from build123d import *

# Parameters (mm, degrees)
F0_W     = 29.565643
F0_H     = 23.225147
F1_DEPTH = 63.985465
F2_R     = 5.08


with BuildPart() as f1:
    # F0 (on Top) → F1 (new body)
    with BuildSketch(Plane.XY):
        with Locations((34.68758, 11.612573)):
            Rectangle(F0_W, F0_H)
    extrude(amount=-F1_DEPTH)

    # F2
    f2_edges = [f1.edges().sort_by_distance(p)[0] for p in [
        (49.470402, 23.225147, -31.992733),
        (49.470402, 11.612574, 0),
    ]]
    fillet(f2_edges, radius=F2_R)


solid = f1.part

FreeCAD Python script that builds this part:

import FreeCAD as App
import Part
import Sketcher

V = App.Vector
Q = App.Units.Quantity


def edges_at(feature, points):
    """Names of the edges that pass closest to the given points."""
    edges = feature.Shape.Edges
    near = lambda p: min(range(len(edges)), key=lambda i: edges[i].distToShape(Part.Vertex(*p))[0])
    return sorted({f"Edge{near(p) + 1}" for p in points})

doc = App.newDocument("Part")
body = doc.addObject("PartDesign::Body", "Body")

sketch1 = doc.addObject("Sketcher::SketchObject", "Sketch")
body.addObject(sketch1)
sketch1.AttachmentSupport = (doc.XY_Plane, [""])
sketch1.MapMode = "FlatFace"
sketch1.addGeometry(Part.LineSegment(V(20, 23, 0), V(20, 0, 0)), False)
sketch1.addGeometry(Part.LineSegment(V(20, 0, 0), V(49, 0, 0)), False)
sketch1.addGeometry(Part.LineSegment(V(49, 0, 0), V(49, 23, 0)), False)
sketch1.addGeometry(Part.LineSegment(V(49, 23, 0), V(20, 23, 0)), False)
sketch1.addConstraint(Sketcher.Constraint("Coincident", 0, 2, 1, 1))
sketch1.addConstraint(Sketcher.Constraint("Coincident", 1, 2, 2, 1))
sketch1.addConstraint(Sketcher.Constraint("Coincident", 2, 2, 3, 1))
sketch1.addConstraint(Sketcher.Constraint("Coincident", 3, 2, 0, 1))
sketch1.addConstraint(Sketcher.Constraint("Vertical", 0))
sketch1.addConstraint(Sketcher.Constraint("Horizontal", 1))
sketch1.addConstraint(Sketcher.Constraint("Vertical", 2))
sketch1.addConstraint(Sketcher.Constraint("Horizontal", 3))
sketch1.addConstraint(Sketcher.Constraint("PointOnObject", 0, 2, -1))
sketch1.addConstraint(Sketcher.Constraint("DistanceX", -1, 1, 1, 2, Q("49.470402 mm")))
sketch1.addConstraint(Sketcher.Constraint("DistanceX", 1, 1, 1, 2, Q("29.565643 mm")))
sketch1.addConstraint(Sketcher.Constraint("DistanceY", 0, 2, 0, 1, Q("23.225147 mm")))
pad1 = doc.addObject("PartDesign::Pad", "Pad")
body.addObject(pad1)
pad1.Profile = sketch1
pad1.Length = 63.985465
pad1.Reversed = True
doc.recompute()

fillet = doc.addObject("PartDesign::Fillet", "Fillet")
body.addObject(fillet)
fillet.Base = (pad1, edges_at(pad1, [(49.47, 23.225, -31.993), (49.47, 11.613, 0)]))
fillet.Radius = Q("0.2 in")

doc.recompute()
